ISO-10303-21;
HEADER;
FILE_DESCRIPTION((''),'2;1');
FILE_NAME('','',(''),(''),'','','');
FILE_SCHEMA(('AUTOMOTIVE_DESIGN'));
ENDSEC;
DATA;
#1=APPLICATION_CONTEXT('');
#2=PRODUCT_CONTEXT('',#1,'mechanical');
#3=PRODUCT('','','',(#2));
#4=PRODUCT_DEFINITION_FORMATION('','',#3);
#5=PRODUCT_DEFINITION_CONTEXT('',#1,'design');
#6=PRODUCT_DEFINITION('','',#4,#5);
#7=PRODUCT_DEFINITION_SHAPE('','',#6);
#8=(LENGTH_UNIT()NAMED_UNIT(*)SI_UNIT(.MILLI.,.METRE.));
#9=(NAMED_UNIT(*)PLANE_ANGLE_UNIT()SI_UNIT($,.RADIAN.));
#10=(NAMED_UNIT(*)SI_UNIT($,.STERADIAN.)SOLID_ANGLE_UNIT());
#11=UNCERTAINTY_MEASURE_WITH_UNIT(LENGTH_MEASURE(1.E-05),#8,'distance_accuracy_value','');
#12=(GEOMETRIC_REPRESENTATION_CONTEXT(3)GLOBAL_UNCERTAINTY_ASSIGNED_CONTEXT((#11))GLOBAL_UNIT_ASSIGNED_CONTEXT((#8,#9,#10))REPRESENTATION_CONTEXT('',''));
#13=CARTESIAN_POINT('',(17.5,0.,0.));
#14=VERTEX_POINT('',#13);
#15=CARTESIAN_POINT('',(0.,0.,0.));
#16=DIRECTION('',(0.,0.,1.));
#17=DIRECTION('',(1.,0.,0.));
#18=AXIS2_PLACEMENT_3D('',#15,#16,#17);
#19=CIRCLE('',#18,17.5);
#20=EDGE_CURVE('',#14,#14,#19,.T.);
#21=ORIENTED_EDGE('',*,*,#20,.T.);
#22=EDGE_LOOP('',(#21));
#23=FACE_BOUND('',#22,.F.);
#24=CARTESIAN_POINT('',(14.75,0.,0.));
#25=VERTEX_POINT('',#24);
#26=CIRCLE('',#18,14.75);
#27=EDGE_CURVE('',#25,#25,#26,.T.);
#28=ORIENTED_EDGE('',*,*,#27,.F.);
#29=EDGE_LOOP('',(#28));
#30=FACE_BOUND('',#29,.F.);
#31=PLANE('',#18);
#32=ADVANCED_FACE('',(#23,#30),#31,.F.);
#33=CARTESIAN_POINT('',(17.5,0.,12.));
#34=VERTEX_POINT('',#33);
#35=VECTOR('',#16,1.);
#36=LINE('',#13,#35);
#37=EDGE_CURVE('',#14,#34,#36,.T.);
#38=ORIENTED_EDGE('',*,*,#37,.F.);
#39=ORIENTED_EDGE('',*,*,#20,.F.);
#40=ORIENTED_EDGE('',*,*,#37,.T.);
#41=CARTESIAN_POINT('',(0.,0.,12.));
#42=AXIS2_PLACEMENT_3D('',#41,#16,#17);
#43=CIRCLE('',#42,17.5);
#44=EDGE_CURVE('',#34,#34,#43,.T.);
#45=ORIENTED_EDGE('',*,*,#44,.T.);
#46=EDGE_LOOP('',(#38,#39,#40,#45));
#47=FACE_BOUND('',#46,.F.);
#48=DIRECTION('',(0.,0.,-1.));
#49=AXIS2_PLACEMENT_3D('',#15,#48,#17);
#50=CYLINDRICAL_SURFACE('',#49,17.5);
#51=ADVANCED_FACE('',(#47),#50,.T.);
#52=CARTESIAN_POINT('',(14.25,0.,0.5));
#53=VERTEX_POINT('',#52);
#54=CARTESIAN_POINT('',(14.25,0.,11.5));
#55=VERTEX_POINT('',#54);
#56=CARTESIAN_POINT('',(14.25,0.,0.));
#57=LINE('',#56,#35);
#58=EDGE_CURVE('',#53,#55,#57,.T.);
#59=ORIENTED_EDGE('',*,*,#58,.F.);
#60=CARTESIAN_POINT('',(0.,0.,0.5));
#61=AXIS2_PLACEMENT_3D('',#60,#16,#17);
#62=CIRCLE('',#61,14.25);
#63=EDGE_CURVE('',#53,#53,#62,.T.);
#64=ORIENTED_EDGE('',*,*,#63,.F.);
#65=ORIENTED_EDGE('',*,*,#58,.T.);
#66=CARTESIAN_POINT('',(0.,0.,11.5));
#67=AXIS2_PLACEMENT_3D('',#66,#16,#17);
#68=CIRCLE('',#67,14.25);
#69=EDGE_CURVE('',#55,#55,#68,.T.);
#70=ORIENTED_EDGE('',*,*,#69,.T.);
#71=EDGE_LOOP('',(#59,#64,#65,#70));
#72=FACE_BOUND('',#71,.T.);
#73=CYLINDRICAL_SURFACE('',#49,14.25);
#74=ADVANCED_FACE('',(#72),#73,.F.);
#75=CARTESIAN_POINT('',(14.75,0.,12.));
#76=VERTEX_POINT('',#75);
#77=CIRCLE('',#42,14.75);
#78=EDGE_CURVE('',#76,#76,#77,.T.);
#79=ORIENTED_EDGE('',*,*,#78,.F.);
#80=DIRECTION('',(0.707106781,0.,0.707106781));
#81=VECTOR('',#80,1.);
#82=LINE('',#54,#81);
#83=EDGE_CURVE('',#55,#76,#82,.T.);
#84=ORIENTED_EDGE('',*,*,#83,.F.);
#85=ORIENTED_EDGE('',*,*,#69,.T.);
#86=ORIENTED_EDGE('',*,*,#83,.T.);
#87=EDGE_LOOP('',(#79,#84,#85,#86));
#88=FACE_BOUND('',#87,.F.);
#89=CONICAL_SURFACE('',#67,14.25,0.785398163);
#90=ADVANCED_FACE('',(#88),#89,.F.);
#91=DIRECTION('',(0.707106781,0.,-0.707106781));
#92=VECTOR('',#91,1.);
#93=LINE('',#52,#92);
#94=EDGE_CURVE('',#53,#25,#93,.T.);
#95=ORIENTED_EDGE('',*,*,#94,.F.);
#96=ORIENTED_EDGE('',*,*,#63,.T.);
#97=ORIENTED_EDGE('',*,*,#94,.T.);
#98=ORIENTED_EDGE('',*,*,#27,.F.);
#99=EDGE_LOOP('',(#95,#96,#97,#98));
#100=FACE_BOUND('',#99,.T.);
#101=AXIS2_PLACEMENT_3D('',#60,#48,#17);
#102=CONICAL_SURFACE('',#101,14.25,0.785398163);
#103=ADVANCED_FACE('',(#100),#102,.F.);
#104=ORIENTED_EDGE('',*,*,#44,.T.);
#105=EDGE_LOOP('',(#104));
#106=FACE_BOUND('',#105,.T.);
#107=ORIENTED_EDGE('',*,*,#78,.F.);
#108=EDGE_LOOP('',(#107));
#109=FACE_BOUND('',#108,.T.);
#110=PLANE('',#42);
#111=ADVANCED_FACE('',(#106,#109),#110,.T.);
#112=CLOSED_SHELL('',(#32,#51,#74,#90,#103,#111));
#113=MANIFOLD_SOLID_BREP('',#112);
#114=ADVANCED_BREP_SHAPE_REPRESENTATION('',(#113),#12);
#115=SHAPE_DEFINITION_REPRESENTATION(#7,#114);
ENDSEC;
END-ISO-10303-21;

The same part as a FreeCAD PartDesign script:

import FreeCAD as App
import Part
import Sketcher


def edges_at(feature, points):
    """Names of the edges that pass closest to the given points."""
    edges = feature.Shape.Edges
    near = lambda p: min(range(len(edges)), key=lambda i: edges[i].distToShape(Part.Vertex(*p))[0])
    return sorted({f"Edge{near(p) + 1}" for p in points})

doc = App.newDocument("Part")
params = doc.addObject("Spreadsheet::Sheet", "Params")
for row, (alias, value) in enumerate([
    ("sketch1_diameter", "35 mm"),
    ("sketch1_diameter2", "28.5 mm"),
    ("pad1_length", "12 mm"),
    ("chamfer_size", "0.5 mm"),
], start=1):
    params.set(f"A{row}", alias)
    params.set(f"B{row}", "=" + value)
    params.setAlias(f"B{row}", alias)

body = doc.addObject("PartDesign::Body", "Body")

# Sketch on XY plane
sketch1 = body.newObject("Sketcher::SketchObject", "Sketch")
sketch1.AttachmentSupport = (doc.getObject("XY_Plane"), [""])
sketch1.MapMode = "FlatFace"
sketch1.addGeometry([
    Part.Circle(App.Vector(0, 0, 0), App.Vector(0, 0, 1), 18),
    Part.Circle(App.Vector(0, 0, 0), App.Vector(0, 0, 1), 14),
], False)
sketch1.addConstraint([
    Sketcher.Constraint("Coincident", 0, 3, -1, 1),
    Sketcher.Constraint("Coincident", 1, 3, -1, 1),
    Sketcher.Constraint("Diameter", 0, 35.0),
    Sketcher.Constraint("Diameter", 1, 28.5),
])
sketch1.setExpression("Constraints[2]", "Params.sketch1_diameter")
sketch1.setExpression("Constraints[3]", "Params.sketch1_diameter2")
pad1 = body.newObject("PartDesign::Pad", "Pad")
pad1.Profile = sketch1
pad1.setExpression("Length", "Params.pad1_length")
doc.recompute()

chamfer = body.newObject("PartDesign::Chamfer", "Chamfer")
chamfer.Base = (pad1, edges_at(pad1, [(-14.25, 0, 12), (-14.25, 0, 0)]))
chamfer.setExpression("Size", "Params.chamfer_size")

doc.recompute()
